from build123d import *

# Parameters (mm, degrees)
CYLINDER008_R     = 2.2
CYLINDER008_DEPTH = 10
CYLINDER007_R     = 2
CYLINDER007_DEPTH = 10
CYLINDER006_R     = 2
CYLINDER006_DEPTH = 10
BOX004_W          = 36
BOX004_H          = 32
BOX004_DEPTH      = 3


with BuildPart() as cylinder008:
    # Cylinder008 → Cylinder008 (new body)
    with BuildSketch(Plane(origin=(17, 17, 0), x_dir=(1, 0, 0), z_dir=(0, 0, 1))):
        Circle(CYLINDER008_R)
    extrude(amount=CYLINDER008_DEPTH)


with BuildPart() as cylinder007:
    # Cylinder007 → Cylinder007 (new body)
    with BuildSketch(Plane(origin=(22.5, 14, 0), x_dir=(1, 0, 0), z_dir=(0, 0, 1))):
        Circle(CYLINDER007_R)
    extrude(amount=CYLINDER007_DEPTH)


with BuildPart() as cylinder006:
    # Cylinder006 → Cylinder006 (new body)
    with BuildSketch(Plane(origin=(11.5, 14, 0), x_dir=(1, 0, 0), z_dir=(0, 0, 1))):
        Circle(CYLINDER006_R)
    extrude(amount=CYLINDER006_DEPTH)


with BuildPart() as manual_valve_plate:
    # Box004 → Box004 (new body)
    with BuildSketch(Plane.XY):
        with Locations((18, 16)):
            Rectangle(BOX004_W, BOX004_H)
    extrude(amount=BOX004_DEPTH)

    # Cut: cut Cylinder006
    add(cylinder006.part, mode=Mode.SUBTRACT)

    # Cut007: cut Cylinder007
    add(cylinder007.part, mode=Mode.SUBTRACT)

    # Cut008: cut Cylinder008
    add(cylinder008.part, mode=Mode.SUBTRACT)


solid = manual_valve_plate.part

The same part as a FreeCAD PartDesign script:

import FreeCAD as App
import Part
import Sketcher
Q = App.Units.Quantity


def add_polygon(sketch, points):
    """Adds a closed chain of lines whose ends are joined by coincident constraints."""
    first, n = sketch.GeometryCount, len(points)
    for a, b in zip(points, points[1:] + points[:1]):
        sketch.addGeometry(Part.LineSegment(App.Vector(*a, 0), App.Vector(*b, 0)), False)
    for i in range(n):
        sketch.addConstraint(Sketcher.Constraint("Coincident", first + i, 2, first + (i + 1) % n, 1))

doc = App.newDocument("Part")
params = doc.addObject("Spreadsheet::Sheet", "Params")
for row, (alias, value) in enumerate([
    ("sketch1_diameter", "4.4 mm"),
    ("pad1_length", "10 mm"),
    ("sketch2_diameter", "4 mm"),
    ("pad2_length", "10 mm"),
    ("sketch3_diameter", "4 mm"),
    ("pad3_length", "10 mm"),
    ("sketch4_width", "36 mm"),
    ("sketch4_height", "32 mm"),
    ("pad4_length", "3 mm"),
], start=1):
    params.set(f"A{row}", alias)
    params.set(f"B{row}", "=" + value)
    params.setAlias(f"B{row}", alias)

body = doc.addObject("PartDesign::Body", "Body")

# Sketch on XY plane
sketch1 = doc.addObject("Sketcher::SketchObject", "Sketch")
body.addObject(sketch1)
sketch1.AttachmentSupport = (doc.XY_Plane, [""])
sketch1.MapMode = "FlatFace"
sketch1.addGeometry(Part.Circle(App.Vector(17, 17, 0), App.Vector(0, 0, 1), 2.2), False)
sketch1.addConstraint(Sketcher.Constraint("Diameter", 0, Q("4.4 mm")))
sketch1.addConstraint(Sketcher.Constraint("DistanceX", -1, 1, 0, 3, Q("17 mm")))
sketch1.addConstraint(Sketcher.Constraint("DistanceY", -1, 1, 0, 3, Q("17 mm")))
sketch1.setExpression("Constraints[0]", "Params.sketch1_diameter")
pad1 = doc.addObject("PartDesign::Pad", "Pad")
body.addObject(pad1)
pad1.Profile = sketch1
pad1.setExpression("Length", "Params.pad1_length")
body2 = doc.addObject("PartDesign::Body", "Body001")

# Sketch on XY plane
sketch2 = doc.addObject("Sketcher::SketchObject", "Sketch001")
body2.addObject(sketch2)
sketch2.AttachmentSupport = (doc.getObject("XY_Plane001"), [""])
sketch2.MapMode = "FlatFace"
sketch2.addGeometry(Part.Circle(App.Vector(22.5, 14, 0), App.Vector(0, 0, 1), 2), False)
sketch2.addConstraint(Sketcher.Constraint("Diameter", 0, Q("4 mm")))
sketch2.addConstraint(Sketcher.Constraint("DistanceY", -1, 1, 0, 3, Q("14 mm")))
sketch2.addConstraint(Sketcher.Constraint("DistanceX", -1, 1, 0, 3, Q("22.5 mm")))
sketch2.setExpression("Constraints[0]", "Params.sketch2_diameter")
pad2 = doc.addObject("PartDesign::Pad", "Pad001")
body2.addObject(pad2)
pad2.Profile = sketch2
pad2.setExpression("Length", "Params.pad2_length")
body3 = doc.addObject("PartDesign::Body", "Body002")

# Sketch on XY plane
sketch3 = doc.addObject("Sketcher::SketchObject", "Sketch002")
body3.addObject(sketch3)
sketch3.AttachmentSupport = (doc.getObject("XY_Plane002"), [""])
sketch3.MapMode = "FlatFace"
sketch3.addGeometry(Part.Circle(App.Vector(11.5, 14, 0), App.Vector(0, 0, 1), 2), False)
sketch3.addConstraint(Sketcher.Constraint("Diameter", 0, Q("4 mm")))
sketch3.addConstraint(Sketcher.Constraint("DistanceY", -1, 1, 0, 3, Q("14 mm")))
sketch3.addConstraint(Sketcher.Constraint("DistanceX", -1, 1, 0, 3, Q("11.5 mm")))
sketch3.setExpression("Constraints[0]", "Params.sketch3_diameter")
pad3 = doc.addObject("PartDesign::Pad", "Pad002")
body3.addObject(pad3)
pad3.Profile = sketch3
pad3.setExpression("Length", "Params.pad3_length")
body4 = doc.addObject("PartDesign::Body", "Body003")

# Sketch on XY plane
sketch4 = doc.addObject("Sketcher::SketchObject", "Sketch003")
body4.addObject(sketch4)
sketch4.AttachmentSupport = (doc.getObject("XY_Plane003"), [""])
sketch4.MapMode = "FlatFace"
add_polygon(sketch4, [(0, 32), (0, 0), (36, 0), (36, 32)])  # lines 0-3
sketch4.addConstraint(Sketcher.Constraint("Vertical", 0))
sketch4.addConstraint(Sketcher.Constraint("Horizontal", 1))
sketch4.addConstraint(Sketcher.Constraint("Vertical", 2))
sketch4.addConstraint(Sketcher.Constraint("Horizontal", 3))
sketch4.addConstraint(Sketcher.Constraint("Coincident", 0, 2, -1, 1))
sketch4.addConstraint(Sketcher.Constraint("DistanceX", 1, 1, 1, 2, Q("36 mm")))
sketch4.addConstraint(Sketcher.Constraint("DistanceY", 0, 2, 0, 1, Q("32 mm")))
sketch4.setExpression("Constraints[9]", "Params.sketch4_width")
sketch4.setExpression("Constraints[10]", "Params.sketch4_height")
pad4 = doc.addObject("PartDesign::Pad", "Pad003")
body4.addObject(pad4)
pad4.Profile = sketch4
pad4.setExpression("Length", "Params.pad4_length")
doc.recompute()

boolean = doc.addObject("PartDesign::Boolean", "Boolean")
body4.addObject(boolean)
boolean.Type = "Cut"
boolean.addObjects([body3])
doc.recompute()

boolean2 = doc.addObject("PartDesign::Boolean", "Boolean001")
body4.addObject(boolean2)
boolean2.Type = "Cut"
boolean2.addObjects([body2])
doc.recompute()

boolean3 = doc.addObject("PartDesign::Boolean", "Boolean002")
body4.addObject(boolean3)
boolean3.Type = "Cut"
boolean3.addObjects([body])

doc.recompute()
